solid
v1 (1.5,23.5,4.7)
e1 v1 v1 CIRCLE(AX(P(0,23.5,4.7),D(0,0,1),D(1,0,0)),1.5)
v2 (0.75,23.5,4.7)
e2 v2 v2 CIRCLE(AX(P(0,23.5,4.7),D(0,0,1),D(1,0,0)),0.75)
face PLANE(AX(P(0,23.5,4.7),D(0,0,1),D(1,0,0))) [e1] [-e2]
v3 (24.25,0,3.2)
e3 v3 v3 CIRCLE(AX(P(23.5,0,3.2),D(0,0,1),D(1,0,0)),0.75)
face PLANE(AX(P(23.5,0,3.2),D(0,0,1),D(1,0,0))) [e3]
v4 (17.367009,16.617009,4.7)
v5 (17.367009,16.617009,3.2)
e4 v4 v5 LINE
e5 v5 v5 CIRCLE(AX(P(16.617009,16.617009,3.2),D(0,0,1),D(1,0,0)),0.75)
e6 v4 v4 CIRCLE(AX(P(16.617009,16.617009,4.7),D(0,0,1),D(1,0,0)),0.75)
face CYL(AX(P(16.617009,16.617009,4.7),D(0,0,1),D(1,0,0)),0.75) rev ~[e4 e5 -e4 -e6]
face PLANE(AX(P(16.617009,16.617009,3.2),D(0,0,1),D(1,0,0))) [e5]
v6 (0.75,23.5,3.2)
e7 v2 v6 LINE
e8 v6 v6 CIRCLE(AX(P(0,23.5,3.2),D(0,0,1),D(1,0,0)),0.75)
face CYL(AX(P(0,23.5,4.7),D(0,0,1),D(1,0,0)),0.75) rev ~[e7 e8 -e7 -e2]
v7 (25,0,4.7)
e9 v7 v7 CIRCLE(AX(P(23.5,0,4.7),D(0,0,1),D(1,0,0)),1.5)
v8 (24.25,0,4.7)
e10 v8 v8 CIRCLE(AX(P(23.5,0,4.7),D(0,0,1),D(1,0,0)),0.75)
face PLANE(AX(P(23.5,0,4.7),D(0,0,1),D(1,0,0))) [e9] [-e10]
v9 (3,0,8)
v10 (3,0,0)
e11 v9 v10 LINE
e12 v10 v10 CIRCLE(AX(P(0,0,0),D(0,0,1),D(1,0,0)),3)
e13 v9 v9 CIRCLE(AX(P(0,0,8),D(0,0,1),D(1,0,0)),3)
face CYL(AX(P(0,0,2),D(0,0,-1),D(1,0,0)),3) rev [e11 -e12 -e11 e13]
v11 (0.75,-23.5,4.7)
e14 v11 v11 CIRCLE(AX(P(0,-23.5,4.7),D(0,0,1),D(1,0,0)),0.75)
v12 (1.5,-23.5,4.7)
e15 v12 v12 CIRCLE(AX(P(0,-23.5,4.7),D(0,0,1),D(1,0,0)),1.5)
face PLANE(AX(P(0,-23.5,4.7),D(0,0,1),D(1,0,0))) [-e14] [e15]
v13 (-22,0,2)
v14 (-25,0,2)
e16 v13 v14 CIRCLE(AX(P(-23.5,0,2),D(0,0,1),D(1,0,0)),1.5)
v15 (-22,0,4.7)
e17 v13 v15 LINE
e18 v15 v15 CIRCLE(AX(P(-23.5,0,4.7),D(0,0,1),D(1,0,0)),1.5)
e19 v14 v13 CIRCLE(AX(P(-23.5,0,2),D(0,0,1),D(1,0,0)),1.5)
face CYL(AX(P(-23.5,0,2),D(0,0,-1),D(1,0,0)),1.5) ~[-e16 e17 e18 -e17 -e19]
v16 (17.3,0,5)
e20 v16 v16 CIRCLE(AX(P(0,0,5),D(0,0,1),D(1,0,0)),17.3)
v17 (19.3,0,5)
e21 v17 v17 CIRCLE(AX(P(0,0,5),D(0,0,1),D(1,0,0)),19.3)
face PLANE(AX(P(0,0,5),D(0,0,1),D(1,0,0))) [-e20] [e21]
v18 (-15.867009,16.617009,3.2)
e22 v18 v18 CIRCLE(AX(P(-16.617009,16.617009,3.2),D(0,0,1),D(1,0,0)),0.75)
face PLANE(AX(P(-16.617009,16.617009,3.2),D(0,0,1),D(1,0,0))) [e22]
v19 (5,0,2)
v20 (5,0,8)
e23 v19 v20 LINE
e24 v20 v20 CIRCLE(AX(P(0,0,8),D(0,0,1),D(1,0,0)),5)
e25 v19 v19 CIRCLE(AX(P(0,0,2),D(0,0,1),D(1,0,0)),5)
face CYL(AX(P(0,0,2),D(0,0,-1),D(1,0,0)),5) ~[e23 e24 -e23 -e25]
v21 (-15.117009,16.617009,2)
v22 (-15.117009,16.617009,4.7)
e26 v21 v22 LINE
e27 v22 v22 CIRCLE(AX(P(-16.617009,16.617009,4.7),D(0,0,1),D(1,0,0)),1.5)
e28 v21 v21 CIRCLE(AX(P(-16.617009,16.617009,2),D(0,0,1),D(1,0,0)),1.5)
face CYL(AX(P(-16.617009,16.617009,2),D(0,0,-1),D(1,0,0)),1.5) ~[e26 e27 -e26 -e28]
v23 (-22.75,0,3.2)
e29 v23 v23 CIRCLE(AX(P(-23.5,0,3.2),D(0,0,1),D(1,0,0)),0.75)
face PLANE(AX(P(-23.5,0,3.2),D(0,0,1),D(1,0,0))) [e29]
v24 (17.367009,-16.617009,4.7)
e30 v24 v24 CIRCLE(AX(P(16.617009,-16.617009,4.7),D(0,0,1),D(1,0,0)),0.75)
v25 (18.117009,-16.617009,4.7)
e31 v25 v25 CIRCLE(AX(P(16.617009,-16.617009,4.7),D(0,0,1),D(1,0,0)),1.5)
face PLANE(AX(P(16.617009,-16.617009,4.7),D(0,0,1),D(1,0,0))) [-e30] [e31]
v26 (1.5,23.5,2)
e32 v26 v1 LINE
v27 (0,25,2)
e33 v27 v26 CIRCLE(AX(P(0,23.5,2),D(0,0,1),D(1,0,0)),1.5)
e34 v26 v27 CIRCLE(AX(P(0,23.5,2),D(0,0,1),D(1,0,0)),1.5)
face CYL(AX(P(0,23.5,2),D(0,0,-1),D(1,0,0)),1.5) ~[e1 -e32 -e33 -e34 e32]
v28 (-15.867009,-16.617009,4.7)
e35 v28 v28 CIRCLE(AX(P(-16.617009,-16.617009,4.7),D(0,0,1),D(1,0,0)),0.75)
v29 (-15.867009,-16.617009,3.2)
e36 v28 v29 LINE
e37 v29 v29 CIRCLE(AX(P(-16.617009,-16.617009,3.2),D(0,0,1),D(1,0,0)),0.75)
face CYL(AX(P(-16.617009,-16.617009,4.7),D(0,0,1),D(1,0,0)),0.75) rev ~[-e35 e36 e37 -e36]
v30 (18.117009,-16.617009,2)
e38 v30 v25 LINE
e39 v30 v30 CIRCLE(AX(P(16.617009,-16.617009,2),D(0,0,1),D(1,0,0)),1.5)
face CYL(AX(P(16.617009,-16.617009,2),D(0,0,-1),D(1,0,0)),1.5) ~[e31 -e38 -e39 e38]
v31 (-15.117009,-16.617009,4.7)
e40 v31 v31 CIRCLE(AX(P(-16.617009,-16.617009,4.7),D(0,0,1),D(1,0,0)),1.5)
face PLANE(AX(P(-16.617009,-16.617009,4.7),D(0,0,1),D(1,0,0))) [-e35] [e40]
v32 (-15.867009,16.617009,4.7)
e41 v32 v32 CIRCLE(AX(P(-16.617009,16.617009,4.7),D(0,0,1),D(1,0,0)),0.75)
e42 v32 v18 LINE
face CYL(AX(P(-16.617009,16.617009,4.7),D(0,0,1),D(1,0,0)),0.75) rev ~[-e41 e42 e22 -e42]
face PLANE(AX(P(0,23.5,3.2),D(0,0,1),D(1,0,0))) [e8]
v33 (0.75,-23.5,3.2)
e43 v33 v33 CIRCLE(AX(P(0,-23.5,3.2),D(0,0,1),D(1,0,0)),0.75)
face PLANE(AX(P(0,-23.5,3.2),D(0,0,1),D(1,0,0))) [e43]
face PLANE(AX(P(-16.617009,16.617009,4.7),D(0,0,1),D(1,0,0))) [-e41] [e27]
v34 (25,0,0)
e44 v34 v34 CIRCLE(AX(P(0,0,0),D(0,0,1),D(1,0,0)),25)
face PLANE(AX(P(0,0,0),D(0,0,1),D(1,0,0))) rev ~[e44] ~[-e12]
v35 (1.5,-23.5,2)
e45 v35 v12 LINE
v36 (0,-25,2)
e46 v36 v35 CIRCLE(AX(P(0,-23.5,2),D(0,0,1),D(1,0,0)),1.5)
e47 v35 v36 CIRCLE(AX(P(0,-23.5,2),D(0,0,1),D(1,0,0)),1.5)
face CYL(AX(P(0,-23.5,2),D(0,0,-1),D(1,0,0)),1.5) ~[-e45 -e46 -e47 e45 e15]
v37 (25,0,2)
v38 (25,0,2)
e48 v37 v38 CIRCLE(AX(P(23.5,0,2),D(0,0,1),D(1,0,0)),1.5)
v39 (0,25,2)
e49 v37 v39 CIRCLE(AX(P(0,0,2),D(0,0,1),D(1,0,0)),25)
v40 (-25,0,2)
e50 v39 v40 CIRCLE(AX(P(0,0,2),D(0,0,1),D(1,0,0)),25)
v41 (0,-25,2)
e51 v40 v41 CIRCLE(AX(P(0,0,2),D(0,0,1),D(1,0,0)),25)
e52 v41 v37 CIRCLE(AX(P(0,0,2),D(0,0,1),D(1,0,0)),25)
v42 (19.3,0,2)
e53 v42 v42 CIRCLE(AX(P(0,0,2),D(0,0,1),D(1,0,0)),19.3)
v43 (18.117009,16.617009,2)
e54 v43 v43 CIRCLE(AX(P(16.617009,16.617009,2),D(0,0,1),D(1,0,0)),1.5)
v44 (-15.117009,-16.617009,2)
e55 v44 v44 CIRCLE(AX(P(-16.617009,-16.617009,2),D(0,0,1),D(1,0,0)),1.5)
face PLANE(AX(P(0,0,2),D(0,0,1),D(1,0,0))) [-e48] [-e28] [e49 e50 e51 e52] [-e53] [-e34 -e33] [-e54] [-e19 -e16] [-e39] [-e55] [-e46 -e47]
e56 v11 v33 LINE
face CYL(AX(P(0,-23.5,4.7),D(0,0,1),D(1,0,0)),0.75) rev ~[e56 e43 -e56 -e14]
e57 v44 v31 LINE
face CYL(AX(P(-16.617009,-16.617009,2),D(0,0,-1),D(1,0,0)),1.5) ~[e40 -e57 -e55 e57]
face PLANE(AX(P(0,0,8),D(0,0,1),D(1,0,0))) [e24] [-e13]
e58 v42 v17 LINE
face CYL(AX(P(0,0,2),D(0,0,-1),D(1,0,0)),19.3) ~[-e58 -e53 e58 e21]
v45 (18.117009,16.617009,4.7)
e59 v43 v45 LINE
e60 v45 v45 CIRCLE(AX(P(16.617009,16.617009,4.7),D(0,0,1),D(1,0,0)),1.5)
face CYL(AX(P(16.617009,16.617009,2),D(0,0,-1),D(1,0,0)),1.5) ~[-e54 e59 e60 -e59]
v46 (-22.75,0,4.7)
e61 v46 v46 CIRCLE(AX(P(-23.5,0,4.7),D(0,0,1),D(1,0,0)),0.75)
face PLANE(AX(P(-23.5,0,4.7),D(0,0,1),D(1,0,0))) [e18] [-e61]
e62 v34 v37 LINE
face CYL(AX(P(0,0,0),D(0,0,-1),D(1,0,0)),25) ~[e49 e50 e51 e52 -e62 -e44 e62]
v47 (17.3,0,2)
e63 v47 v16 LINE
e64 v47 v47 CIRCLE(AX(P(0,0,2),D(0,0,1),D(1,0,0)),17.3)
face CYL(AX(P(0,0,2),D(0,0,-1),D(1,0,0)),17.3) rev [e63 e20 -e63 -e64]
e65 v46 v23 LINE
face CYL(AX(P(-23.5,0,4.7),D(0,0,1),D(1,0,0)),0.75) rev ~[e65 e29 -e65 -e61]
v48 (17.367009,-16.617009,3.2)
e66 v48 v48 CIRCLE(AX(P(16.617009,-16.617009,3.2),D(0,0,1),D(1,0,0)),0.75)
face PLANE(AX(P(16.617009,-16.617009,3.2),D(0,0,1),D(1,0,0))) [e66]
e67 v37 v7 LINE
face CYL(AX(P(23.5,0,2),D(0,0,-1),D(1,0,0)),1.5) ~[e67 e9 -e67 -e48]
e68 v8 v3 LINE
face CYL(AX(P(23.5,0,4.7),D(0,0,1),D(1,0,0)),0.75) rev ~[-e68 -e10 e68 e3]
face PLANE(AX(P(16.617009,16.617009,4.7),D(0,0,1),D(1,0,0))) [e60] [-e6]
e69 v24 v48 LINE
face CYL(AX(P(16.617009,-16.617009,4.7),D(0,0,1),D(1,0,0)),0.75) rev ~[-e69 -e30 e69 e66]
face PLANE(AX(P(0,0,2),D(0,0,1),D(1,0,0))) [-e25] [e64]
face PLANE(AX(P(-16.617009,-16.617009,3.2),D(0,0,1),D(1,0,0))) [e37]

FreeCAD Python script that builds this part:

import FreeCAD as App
import Part
import Sketcher

doc = App.newDocument("Part")
params = doc.addObject("Spreadsheet::Sheet", "Params")
for row, (alias, value) in enumerate([
    ("sketch1_diameter", "50 mm"),
    ("sketch1_diameter2", "6 mm"),
    ("pad1_length", "2 mm"),
    ("sketch2_diameter", "38.6 mm"),
    ("sketch2_diameter2", "34.6 mm"),
    ("pad2_length", "3 mm"),
    ("sketch3_diameter", "3 mm"),
    ("pad3_length", "2.7 mm"),
    ("sketch4_diameter", "10 mm"),
    ("sketch4_diameter2", "6 mm"),
    ("pad4_length", "6 mm"),
    ("sketch5_diameter", "1.5 mm"),
    ("pocket1_length", "1.5 mm"),
], start=1):
    params.set(f"A{row}", alias)
    params.set(f"B{row}", "=" + value)
    params.setAlias(f"B{row}", alias)

body = doc.addObject("PartDesign::Body", "Body")

sketch1 = body.newObject("Sketcher::SketchObject", "Sketch")
sketch1.AttachmentSupport = (doc.getObject("XY_Plane"), [""])
sketch1.MapMode = "FlatFace"
sketch1.addGeometry(Part.Circle(App.Vector(0, 0, 0), App.Vector(0, 0, 1), 25), False)
sketch1.addGeometry(Part.Circle(App.Vector(0, 0, 0), App.Vector(0, 0, 1), 3), False)
sketch1.addConstraint(Sketcher.Constraint("Coincident", 0, 3, -1, 1))
sketch1.addConstraint(Sketcher.Constraint("Coincident", 1, 3, -1, 1))
sketch1.addConstraint(Sketcher.Constraint("Diameter", 0, 50.0))
sketch1.addConstraint(Sketcher.Constraint("Diameter", 1, 6.0))
sketch1.setExpression("Constraints[2]", "Params.sketch1_diameter")
sketch1.setExpression("Constraints[3]", "Params.sketch1_diameter2")
pad1 = body.newObject("PartDesign::Pad", "Pad")
pad1.Profile = sketch1
pad1.setExpression("Length", "Params.pad1_length")

sketch2 = body.newObject("Sketcher::SketchObject", "Sketch001")
sketch2.AttachmentSupport = (doc.getObject("XY_Plane"), [""])
sketch2.MapMode = "FlatFace"
sketch2.AttachmentOffset = App.Placement(App.Vector(0, 0, 2), App.Rotation())
sketch2.addGeometry(Part.Circle(App.Vector(0, 0, 0), App.Vector(0, 0, 1), 19), False)
sketch2.addGeometry(Part.Circle(App.Vector(0, 0, 0), App.Vector(0, 0, 1), 17), False)
sketch2.addConstraint(Sketcher.Constraint("Coincident", 0, 3, -1, 1))
sketch2.addConstraint(Sketcher.Constraint("Coincident", 1, 3, -1, 1))
sketch2.addConstraint(Sketcher.Constraint("Diameter", 0, 38.6))
sketch2.addConstraint(Sketcher.Constraint("Diameter", 1, 34.6))
sketch2.setExpression("Constraints[2]", "Params.sketch2_diameter")
sketch2.setExpression("Constraints[3]", "Params.sketch2_diameter2")
pad2 = body.newObject("PartDesign::Pad", "Pad001")
pad2.Profile = sketch2
pad2.setExpression("Length", "Params.pad2_length")

sketch3 = body.newObject("Sketcher::SketchObject", "Sketch002")
sketch3.AttachmentSupport = (doc.getObject("XY_Plane"), [""])
sketch3.MapMode = "FlatFace"
sketch3.AttachmentOffset = App.Placement(App.Vector(0, 0, 2), App.Rotation())
sketch3.addGeometry(Part.Circle(App.Vector(0, 23.5, 0), App.Vector(0, 0, 1), 1.5), False)
sketch3.addGeometry(Part.Circle(App.Vector(-16.6, 16.6, 0), App.Vector(0, 0, 1), 1.5), False)
sketch3.addGeometry(Part.Circle(App.Vector(-23.5, 0, 0), App.Vector(0, 0, 1), 1.5), False)
sketch3.addGeometry(Part.Circle(App.Vector(-16.6, -16.6, 0), App.Vector(0, 0, 1), 1.5), False)
sketch3.addGeometry(Part.Circle(App.Vector(0, -23.5, 0), App.Vector(0, 0, 1), 1.5), False)
sketch3.addGeometry(Part.Circle(App.Vector(16.6, -16.6, 0), App.Vector(0, 0, 1), 1.5), False)
sketch3.addGeometry(Part.Circle(App.Vector(23.5, 0, 0), App.Vector(0, 0, 1), 1.5), False)
sketch3.addGeometry(Part.Circle(App.Vector(16.6, 16.6, 0), App.Vector(0, 0, 1), 1.5), False)
sketch3.addConstraint(Sketcher.Constraint("Equal", 0, 1))
sketch3.addConstraint(Sketcher.Constraint("Equal", 1, 2))
sketch3.addConstraint(Sketcher.Constraint("Equal", 2, 3))
sketch3.addConstraint(Sketcher.Constraint("Equal", 3, 4))
sketch3.addConstraint(Sketcher.Constraint("Equal", 4, 5))
sketch3.addConstraint(Sketcher.Constraint("Equal", 5, 6))
sketch3.addConstraint(Sketcher.Constraint("Equal", 6, 7))
sketch3.addConstraint(Sketcher.Constraint("Symmetric", 0, 3, 4, 3, -1, 1))
sketch3.addConstraint(Sketcher.Constraint("Symmetric", 1, 3, 5, 3, -1, 1))
sketch3.addConstraint(Sketcher.Constraint("Symmetric", 2, 3, 6, 3, -1, 1))
sketch3.addConstraint(Sketcher.Constraint("Symmetric", 3, 3, 7, 3, -1, 1))
sketch3.addConstraint(Sketcher.Constraint("Symmetric", 3, 3, 5, 3, -2))
sketch3.addConstraint(Sketcher.Constraint("PointOnObject", 0, 3, -2))
sketch3.addConstraint(Sketcher.Constraint("PointOnObject", 2, 3, -1))
sketch3.addConstraint(Sketcher.Constraint("Diameter", 0, 3.0))
sketch3.addConstraint(Sketcher.Constraint("DistanceY", 4, 3, 0, 3, 47.0))
sketch3.addConstraint(Sketcher.Constraint("DistanceX", 2, 3, -1, 1, 23.5))
sketch3.addConstraint(Sketcher.Constraint("DistanceX", 1, 3, -1, 1, 16.617009))
sketch3.addConstraint(Sketcher.Constraint("DistanceY", -1, 1, 1, 3, 16.617009))
sketch3.setExpression("Constraints[14]", "Params.sketch3_diameter")
pad3 = body.newObject("PartDesign::Pad", "Pad002")
pad3.Profile = sketch3
pad3.setExpression("Length", "Params.pad3_length")

sketch4 = body.newObject("Sketcher::SketchObject", "Sketch003")
sketch4.AttachmentSupport = (doc.getObject("XY_Plane"), [""])
sketch4.MapMode = "FlatFace"
sketch4.AttachmentOffset = App.Placement(App.Vector(0, 0, 2), App.Rotation())
sketch4.addGeometry(Part.Circle(App.Vector(0, 0, 0), App.Vector(0, 0, 1), 5), False)
sketch4.addGeometry(Part.Circle(App.Vector(0, 0, 0), App.Vector(0, 0, 1), 3), False)
sketch4.addConstraint(Sketcher.Constraint("Coincident", 0, 3, -1, 1))
sketch4.addConstraint(Sketcher.Constraint("Coincident", 1, 3, -1, 1))
sketch4.addConstraint(Sketcher.Constraint("Diameter", 0, 10.0))
sketch4.addConstraint(Sketcher.Constraint("Diameter", 1, 6.0))
sketch4.setExpression("Constraints[2]", "Params.sketch4_diameter")
sketch4.setExpression("Constraints[3]", "Params.sketch4_diameter2")
pad4 = body.newObject("PartDesign::Pad", "Pad003")
pad4.Profile = sketch4
pad4.setExpression("Length", "Params.pad4_length")

sketch5 = body.newObject("Sketcher::SketchObject", "Sketch004")
sketch5.AttachmentSupport = (doc.getObject("XY_Plane"), [""])
sketch5.MapMode = "FlatFace"
sketch5.AttachmentOffset = App.Placement(App.Vector(0, 0, 4.7), App.Rotation())
sketch5.addGeometry(Part.Circle(App.Vector(23.5, 0, 0), App.Vector(0, 0, 1), 0.8), False)
sketch5.addGeometry(Part.Circle(App.Vector(16.6, 16.6, 0), App.Vector(0, 0, 1), 0.8), False)
sketch5.addGeometry(Part.Circle(App.Vector(0, 23.5, 0), App.Vector(0, 0, 1), 0.8), False)
sketch5.addGeometry(Part.Circle(App.Vector(-16.6, 16.6, 0), App.Vector(0, 0, 1), 0.8), False)
sketch5.addGeometry(Part.Circle(App.Vector(-23.5, 0, 0), App.Vector(0, 0, 1), 0.8), False)
sketch5.addGeometry(Part.Circle(App.Vector(-16.6, -16.6, 0), App.Vector(0, 0, 1), 0.8), False)
sketch5.addGeometry(Part.Circle(App.Vector(0, -23.5, 0), App.Vector(0, 0, 1), 0.8), False)
sketch5.addGeometry(Part.Circle(App.Vector(16.6, -16.6, 0), App.Vector(0, 0, 1), 0.8), False)
sketch5.addConstraint(Sketcher.Constraint("Equal", 0, 1))
sketch5.addConstraint(Sketcher.Constraint("Equal", 1, 2))
sketch5.addConstraint(Sketcher.Constraint("Equal", 2, 3))
sketch5.addConstraint(Sketcher.Constraint("Equal", 3, 4))
sketch5.addConstraint(Sketcher.Constraint("Equal", 4, 5))
sketch5.addConstraint(Sketcher.Constraint("Equal", 5, 6))
sketch5.addConstraint(Sketcher.Constraint("Equal", 6, 7))
sketch5.addConstraint(Sketcher.Constraint("Symmetric", 0, 3, 4, 3, -1, 1))
sketch5.addConstraint(Sketcher.Constraint("Symmetric", 1, 3, 5, 3, -1, 1))
sketch5.addConstraint(Sketcher.Constraint("Symmetric", 2, 3, 6, 3, -1, 1))
sketch5.addConstraint(Sketcher.Constraint("Symmetric", 3, 3, 7, 3, -1, 1))
sketch5.addConstraint(Sketcher.Constraint("Symmetric", 1, 3, 3, 3, -2))
sketch5.addConstraint(Sketcher.Constraint("PointOnObject", 0, 3, -1))
sketch5.addConstraint(Sketcher.Constraint("PointOnObject", 2, 3, -2))
sketch5.addConstraint(Sketcher.Constraint("Diameter", 0, 1.5))
sketch5.addConstraint(Sketcher.Constraint("DistanceX", 4, 3, 0, 3, 47.0))
sketch5.addConstraint(Sketcher.Constraint("DistanceY", -1, 1, 2, 3, 23.5))
sketch5.addConstraint(Sketcher.Constraint("DistanceX", -1, 1, 1, 3, 16.617009))
sketch5.addConstraint(Sketcher.Constraint("DistanceY", -1, 1, 1, 3, 16.617009))
sketch5.setExpression("Constraints[14]", "Params.sketch5_diameter")
pocket1 = body.newObject("PartDesign::Pocket", "Pocket")
pocket1.Profile = sketch5
pocket1.setExpression("Length", "Params.pocket1_length")

doc.recompute()
